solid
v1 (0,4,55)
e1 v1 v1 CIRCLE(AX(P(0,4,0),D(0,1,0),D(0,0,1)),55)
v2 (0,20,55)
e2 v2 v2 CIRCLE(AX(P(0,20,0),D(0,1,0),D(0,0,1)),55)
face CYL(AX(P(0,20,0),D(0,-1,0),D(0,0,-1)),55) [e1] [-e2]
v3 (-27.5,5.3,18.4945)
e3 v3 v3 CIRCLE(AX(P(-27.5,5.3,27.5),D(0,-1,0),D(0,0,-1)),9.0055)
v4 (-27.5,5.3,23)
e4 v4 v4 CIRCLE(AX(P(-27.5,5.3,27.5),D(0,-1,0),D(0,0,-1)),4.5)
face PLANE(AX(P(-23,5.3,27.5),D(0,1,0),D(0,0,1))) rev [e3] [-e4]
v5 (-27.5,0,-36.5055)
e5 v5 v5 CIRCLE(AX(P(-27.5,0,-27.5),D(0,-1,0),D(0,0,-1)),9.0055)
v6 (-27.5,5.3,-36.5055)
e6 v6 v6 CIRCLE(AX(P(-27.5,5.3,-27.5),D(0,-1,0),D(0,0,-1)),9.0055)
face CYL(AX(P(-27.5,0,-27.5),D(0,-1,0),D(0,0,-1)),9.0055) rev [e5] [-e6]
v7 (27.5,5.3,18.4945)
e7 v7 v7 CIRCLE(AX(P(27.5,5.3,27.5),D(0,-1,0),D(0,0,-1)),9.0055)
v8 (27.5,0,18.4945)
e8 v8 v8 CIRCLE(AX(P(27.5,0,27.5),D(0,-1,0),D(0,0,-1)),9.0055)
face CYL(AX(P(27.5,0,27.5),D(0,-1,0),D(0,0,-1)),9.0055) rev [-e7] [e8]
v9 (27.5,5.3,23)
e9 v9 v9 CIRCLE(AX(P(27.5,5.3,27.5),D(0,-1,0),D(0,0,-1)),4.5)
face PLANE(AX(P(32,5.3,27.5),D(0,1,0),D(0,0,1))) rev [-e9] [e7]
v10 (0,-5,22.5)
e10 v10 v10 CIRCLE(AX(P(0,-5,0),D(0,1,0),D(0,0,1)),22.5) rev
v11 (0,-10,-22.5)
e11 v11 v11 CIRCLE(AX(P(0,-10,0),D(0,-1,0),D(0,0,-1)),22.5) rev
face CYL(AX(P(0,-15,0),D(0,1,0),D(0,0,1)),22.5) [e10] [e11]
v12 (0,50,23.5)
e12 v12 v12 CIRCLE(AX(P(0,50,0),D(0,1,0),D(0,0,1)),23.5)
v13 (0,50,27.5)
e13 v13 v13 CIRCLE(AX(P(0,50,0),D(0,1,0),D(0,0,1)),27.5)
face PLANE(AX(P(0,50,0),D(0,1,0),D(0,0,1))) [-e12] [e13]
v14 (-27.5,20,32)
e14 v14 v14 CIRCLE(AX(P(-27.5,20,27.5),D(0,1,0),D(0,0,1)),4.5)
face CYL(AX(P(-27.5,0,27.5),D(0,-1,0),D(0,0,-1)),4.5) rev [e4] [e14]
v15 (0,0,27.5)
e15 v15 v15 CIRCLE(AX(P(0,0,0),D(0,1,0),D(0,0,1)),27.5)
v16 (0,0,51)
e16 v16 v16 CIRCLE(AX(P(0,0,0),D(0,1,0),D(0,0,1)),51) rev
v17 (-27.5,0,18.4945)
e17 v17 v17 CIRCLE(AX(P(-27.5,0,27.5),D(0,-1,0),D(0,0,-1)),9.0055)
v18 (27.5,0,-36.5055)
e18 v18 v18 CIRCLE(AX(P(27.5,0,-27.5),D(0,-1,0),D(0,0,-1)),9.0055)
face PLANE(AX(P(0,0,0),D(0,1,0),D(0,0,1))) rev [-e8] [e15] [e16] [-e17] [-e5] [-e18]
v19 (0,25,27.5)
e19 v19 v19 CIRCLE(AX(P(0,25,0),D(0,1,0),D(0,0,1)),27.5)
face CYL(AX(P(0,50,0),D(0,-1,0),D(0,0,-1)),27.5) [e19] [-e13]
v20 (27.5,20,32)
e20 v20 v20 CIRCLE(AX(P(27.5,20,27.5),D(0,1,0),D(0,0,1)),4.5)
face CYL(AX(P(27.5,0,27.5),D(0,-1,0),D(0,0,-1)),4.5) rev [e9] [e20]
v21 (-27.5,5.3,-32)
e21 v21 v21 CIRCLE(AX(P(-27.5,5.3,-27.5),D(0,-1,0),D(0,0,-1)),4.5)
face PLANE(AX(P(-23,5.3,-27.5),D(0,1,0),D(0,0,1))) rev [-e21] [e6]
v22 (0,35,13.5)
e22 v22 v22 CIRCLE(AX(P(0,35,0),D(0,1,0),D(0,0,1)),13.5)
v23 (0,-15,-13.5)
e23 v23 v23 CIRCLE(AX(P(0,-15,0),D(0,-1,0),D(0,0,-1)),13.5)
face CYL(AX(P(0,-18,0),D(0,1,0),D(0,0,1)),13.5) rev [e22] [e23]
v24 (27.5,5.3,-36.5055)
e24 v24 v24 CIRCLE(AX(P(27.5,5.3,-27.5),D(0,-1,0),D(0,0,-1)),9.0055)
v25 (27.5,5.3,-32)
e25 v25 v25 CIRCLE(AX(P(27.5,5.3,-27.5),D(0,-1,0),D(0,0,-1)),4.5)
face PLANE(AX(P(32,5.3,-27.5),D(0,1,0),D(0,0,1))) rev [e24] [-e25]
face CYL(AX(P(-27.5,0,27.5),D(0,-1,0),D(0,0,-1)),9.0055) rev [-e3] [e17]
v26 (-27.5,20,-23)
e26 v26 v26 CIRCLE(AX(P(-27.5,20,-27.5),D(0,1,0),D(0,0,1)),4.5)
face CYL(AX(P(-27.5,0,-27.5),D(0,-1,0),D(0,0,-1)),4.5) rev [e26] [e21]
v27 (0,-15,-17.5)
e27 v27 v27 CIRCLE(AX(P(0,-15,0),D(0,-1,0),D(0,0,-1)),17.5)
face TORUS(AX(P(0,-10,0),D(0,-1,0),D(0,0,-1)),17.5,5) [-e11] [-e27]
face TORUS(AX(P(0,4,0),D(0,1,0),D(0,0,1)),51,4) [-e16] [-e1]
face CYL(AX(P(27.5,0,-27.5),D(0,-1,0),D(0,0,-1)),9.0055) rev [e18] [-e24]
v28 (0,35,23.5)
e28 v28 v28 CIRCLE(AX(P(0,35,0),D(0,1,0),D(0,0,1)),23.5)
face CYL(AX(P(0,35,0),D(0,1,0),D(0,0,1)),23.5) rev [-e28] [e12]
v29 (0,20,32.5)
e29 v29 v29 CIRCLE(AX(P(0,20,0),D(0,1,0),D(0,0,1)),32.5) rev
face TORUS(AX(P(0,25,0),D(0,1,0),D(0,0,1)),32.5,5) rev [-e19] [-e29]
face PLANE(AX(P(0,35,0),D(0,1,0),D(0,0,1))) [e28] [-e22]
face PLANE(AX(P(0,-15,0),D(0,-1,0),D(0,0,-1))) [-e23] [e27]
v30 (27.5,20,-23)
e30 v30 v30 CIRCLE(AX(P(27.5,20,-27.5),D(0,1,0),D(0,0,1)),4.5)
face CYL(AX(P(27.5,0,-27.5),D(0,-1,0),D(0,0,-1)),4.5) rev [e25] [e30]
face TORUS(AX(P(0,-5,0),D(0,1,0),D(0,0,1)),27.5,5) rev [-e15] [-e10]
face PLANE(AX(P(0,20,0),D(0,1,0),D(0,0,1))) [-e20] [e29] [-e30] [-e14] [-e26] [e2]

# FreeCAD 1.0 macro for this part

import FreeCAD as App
import Part
import Sketcher
from FreeCAD import Vector


def edges_at(feature, points):
    """Names of the edges that pass closest to the given points."""
    edges = feature.Shape.Edges
    near = lambda p: min(range(len(edges)), key=lambda i: edges[i].distToShape(Part.Vertex(*p))[0])
    return sorted({f"Edge{near(p) + 1}" for p in points})

doc = App.newDocument("Part")
body = doc.addObject("PartDesign::Body", "Body")

# Sketch on XZ plane
sketch1 = body.newObject("Sketcher::SketchObject", "Sketch")
sketch1.AttachmentSupport = (doc.getObject("XZ_Plane"), [""])
sketch1.MapMode = "FlatFace"
sketch1.addGeometry(Part.Circle(Vector(0, 0, 0), Vector(0, 0, 1), 55), False)
sketch1.addConstraint(Sketcher.Constraint("Coincident", 0, 3, -1, 1))
sketch1.addConstraint(Sketcher.Constraint("Diameter", 0, 110.0))
pad1 = body.newObject("PartDesign::Pad", "Pad")
pad1.Profile = sketch1
pad1.Length = 20
pad1.Reversed = True

# Sketch on XZ plane
sketch2 = body.newObject("Sketcher::SketchObject", "Sketch001")
sketch2.AttachmentSupport = (doc.getObject("XZ_Plane"), [""])
sketch2.MapMode = "FlatFace"
sketch2.AttachmentOffset = App.Placement(Vector(0, 0, -20), App.Rotation())
sketch2.addGeometry(Part.Circle(Vector(0, 0, 0), Vector(0, 0, 1), 28), False)
sketch2.addConstraint(Sketcher.Constraint("Coincident", 0, 3, -1, 1))
sketch2.addConstraint(Sketcher.Constraint("Diameter", 0, 55.0))
pad2 = body.newObject("PartDesign::Pad", "Pad001")
pad2.Profile = sketch2
pad2.Length = 30
pad2.Reversed = True

# Sketch on XZ plane
sketch3 = body.newObject("Sketcher::SketchObject", "Sketch002")
sketch3.AttachmentSupport = (doc.getObject("XZ_Plane"), [""])
sketch3.MapMode = "FlatFace"
sketch3.AttachmentOffset = App.Placement(Vector(0, 0, -50), App.Rotation())
sketch3.addGeometry(Part.Circle(Vector(0, 0, 0), Vector(0, 0, 1), 24), False)
sketch3.addConstraint(Sketcher.Constraint("Coincident", 0, 3, -1, 1))
sketch3.addConstraint(Sketcher.Constraint("Diameter", 0, 47.0))
pocket1 = body.newObject("PartDesign::Pocket", "Pocket")
pocket1.Profile = sketch3
pocket1.Length = 15
pocket1.Reversed = True
doc.recompute()

fillet = body.newObject("PartDesign::Fillet", "Fillet")
fillet.Base = (pocket1, edges_at(pocket1, [(0, 20, -27.5)]))
fillet.Radius = 5

# Sketch on XZ plane
sketch4 = body.newObject("Sketcher::SketchObject", "Sketch003")
sketch4.AttachmentSupport = (doc.getObject("XZ_Plane"), [""])
sketch4.MapMode = "FlatFace"
sketch4.addGeometry(Part.Circle(Vector(-27.5, 27.5, 0), Vector(0, 0, 1), 4.5), False)
sketch4.addGeometry(Part.Circle(Vector(27.5, 27.5, 0), Vector(0, 0, 1), 4.5), False)
sketch4.addGeometry(Part.Circle(Vector(27.5, -27.5, 0), Vector(0, 0, 1), 4.5), False)
sketch4.addGeometry(Part.Circle(Vector(-27.5, -27.5, 0), Vector(0, 0, 1), 4.5), False)
sketch4.addConstraint(Sketcher.Constraint("Equal", 0, 1))
sketch4.addConstraint(Sketcher.Constraint("Equal", 1, 2))
sketch4.addConstraint(Sketcher.Constraint("Equal", 2, 3))
sketch4.addConstraint(Sketcher.Constraint("Symmetric", 0, 3, 2, 3, -1, 1))
sketch4.addConstraint(Sketcher.Constraint("Symmetric", 1, 3, 3, 3, -1, 1))
sketch4.addConstraint(Sketcher.Constraint("Symmetric", 0, 3, 1, 3, -2))
sketch4.addConstraint(Sketcher.Constraint("Diameter", 0, 9.0))
sketch4.addConstraint(Sketcher.Constraint("DistanceX", 0, 3, 1, 3, 55.0))
sketch4.addConstraint(Sketcher.Constraint("DistanceY", 2, 3, 1, 3, 55.0))
doc.recompute()
hole = body.newObject("PartDesign::Hole", "Hole")
hole.Profile = sketch4
hole.ThreadType = "None"
hole.Diameter = 9
hole.DepthType = "ThroughAll"
hole.HoleCutType = "Counterbore"
hole.HoleCutDiameter = 18.011
hole.HoleCutDepth = 5.3
doc.recompute()

fillet2 = body.newObject("PartDesign::Fillet", "Fillet001")
fillet2.Base = (hole, edges_at(hole, [(0, 0, -55)]))
fillet2.Radius = 4

# Sketch on XZ plane
sketch5 = body.newObject("Sketcher::SketchObject", "Sketch004")
sketch5.AttachmentSupport = (doc.getObject("XZ_Plane"), [""])
sketch5.MapMode = "FlatFace"
sketch5.AttachmentOffset = App.Placement(Vector(0, 0, -35), App.Rotation())
sketch5.addGeometry(Part.Circle(Vector(0, 0, 0), Vector(0, 0, 1), 14), False)
sketch5.addConstraint(Sketcher.Constraint("Coincident", 0, 3, -1, 1))
sketch5.addConstraint(Sketcher.Constraint("Diameter", 0, 27.0))
pocket2 = body.newObject("PartDesign::Pocket", "Pocket001")
pocket2.Profile = sketch5
pocket2.Length = 53
pocket2.Reversed = True

# Sketch on XZ plane
sketch6 = body.newObject("Sketcher::SketchObject", "Sketch005")
sketch6.AttachmentSupport = (doc.getObject("XZ_Plane"), [""])
sketch6.MapMode = "FlatFace"
sketch6.addGeometry(Part.Circle(Vector(0, 0, 0), Vector(0, 0, 1), 22), False)
sketch6.addGeometry(Part.Circle(Vector(0, 0, 0), Vector(0, 0, 1), 14), False)
sketch6.addConstraint(Sketcher.Constraint("Coincident", 0, 3, -1, 1))
sketch6.addConstraint(Sketcher.Constraint("Coincident", 1, 3, -1, 1))
sketch6.addConstraint(Sketcher.Constraint("Diameter", 0, 45.0))
sketch6.addConstraint(Sketcher.Constraint("Diameter", 1, 27.0))
pad3 = body.newObject("PartDesign::Pad", "Pad002")
pad3.Profile = sketch6
pad3.Length = 15
doc.recompute()

fillet3 = body.newObject("PartDesign::Fillet", "Fillet002")
fillet3.Base = (pad3, edges_at(pad3, [(0, 0, -22.5), (0, -15, -22.5)]))
fillet3.Radius = 5

doc.recompute()
